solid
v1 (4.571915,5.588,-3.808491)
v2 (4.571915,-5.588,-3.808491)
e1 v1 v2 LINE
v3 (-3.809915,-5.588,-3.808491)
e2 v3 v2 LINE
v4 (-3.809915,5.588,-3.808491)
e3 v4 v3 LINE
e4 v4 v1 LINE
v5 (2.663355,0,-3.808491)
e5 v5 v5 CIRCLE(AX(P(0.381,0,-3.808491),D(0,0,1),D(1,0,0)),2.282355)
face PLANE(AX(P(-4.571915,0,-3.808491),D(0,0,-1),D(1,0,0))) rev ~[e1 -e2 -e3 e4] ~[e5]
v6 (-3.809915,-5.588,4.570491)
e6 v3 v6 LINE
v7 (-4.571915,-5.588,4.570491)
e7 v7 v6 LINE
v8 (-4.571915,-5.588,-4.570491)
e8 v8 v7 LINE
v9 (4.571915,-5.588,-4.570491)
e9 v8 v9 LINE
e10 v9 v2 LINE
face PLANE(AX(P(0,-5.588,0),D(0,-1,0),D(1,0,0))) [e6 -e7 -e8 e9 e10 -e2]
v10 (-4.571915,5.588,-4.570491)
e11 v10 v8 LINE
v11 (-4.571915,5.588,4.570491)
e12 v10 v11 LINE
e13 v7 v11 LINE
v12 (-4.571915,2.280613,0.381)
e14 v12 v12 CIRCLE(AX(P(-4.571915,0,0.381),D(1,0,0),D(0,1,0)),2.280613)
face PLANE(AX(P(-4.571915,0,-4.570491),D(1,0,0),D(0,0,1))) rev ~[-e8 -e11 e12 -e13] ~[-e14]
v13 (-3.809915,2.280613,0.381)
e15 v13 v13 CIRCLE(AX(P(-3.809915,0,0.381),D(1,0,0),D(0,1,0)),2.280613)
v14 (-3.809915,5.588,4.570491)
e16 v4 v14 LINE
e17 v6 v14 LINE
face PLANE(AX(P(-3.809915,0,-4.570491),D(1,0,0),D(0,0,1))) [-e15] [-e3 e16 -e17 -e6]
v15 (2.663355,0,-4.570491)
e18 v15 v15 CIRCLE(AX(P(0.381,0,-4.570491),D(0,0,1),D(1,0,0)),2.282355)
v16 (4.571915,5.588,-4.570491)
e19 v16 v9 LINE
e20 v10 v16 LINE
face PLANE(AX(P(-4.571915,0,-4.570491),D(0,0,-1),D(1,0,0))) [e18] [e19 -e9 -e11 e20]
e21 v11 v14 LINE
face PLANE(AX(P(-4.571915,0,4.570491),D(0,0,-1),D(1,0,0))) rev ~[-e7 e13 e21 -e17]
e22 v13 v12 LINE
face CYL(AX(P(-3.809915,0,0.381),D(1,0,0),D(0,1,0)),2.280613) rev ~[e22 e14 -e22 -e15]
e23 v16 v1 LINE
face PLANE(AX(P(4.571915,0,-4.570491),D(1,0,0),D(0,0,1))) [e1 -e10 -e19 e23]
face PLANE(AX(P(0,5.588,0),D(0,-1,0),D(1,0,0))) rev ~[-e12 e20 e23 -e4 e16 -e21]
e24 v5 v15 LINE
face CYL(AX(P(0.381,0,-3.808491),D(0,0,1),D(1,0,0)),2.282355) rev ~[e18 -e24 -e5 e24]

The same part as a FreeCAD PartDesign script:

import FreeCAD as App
import Part
import Sketcher
from FreeCAD import Vector
Q = App.Units.Quantity


def faces_at(feature, points):
    """Names of the faces that lie closest to the given points."""
    faces = feature.Shape.Faces
    near = lambda p: min(range(len(faces)), key=lambda i: faces[i].distToShape(Part.Vertex(*p))[0])
    return sorted({f"Face{near(p) + 1}" for p in points})


def add_polygon(sketch, points):
    """Adds a closed chain of lines whose ends are joined by coincident constraints."""
    first, n = sketch.GeometryCount, len(points)
    for a, b in zip(points, points[1:] + points[:1]):
        sketch.addGeometry(Part.LineSegment(App.Vector(*a, 0), App.Vector(*b, 0)), False)
    for i in range(n):
        sketch.addConstraint(Sketcher.Constraint("Coincident", first + i, 2, first + (i + 1) % n, 1))

doc = App.newDocument("Part")
body = doc.addObject("PartDesign::Body", "Body")

# Sketch on XZ plane
sketch1 = body.newObject("Sketcher::SketchObject", "Sketch")
sketch1.AttachmentSupport = (doc.getObject("XZ_Plane"), [""])
sketch1.MapMode = "FlatFace"
add_polygon(sketch1, [(-4.571915, 4.570491), (-4.571915, -4.570491), (4.571915, -4.570491), (4.571915, 4.570491)])  # lines 0-3
sketch1.addConstraint(Sketcher.Constraint("Vertical", 0))
sketch1.addConstraint(Sketcher.Constraint("Horizontal", 1))
sketch1.addConstraint(Sketcher.Constraint("Vertical", 2))
sketch1.addConstraint(Sketcher.Constraint("Horizontal", 3))
sketch1.addConstraint(Sketcher.Constraint("Symmetric", 0, 2, 2, 2, -1, 1))
sketch1.addConstraint(Sketcher.Constraint("DistanceX", 1, 1, 1, 2, 9.14383))
sketch1.addConstraint(Sketcher.Constraint("DistanceY", 0, 2, 0, 1, 9.140982))
pad1 = body.newObject("PartDesign::Pad", "Pad")
pad1.Profile = sketch1
pad1.Type = "TwoLengths"
pad1.Length = Q("0.22 in")
pad1.Length2 = Q("0.22 in")
doc.recompute()

thickness = body.newObject("PartDesign::Thickness", "Thickness")
thickness.Base = (pad1, faces_at(pad1, [
    (0, 0, 4.57),
    (4.572, 0, 0),
    (0, -5.588, 0),
    (0, 5.588, 0),
]))
thickness.Value = Q("0.03 in")
thickness.Reversed = True
thickness.Join = "Arc"

# Sketch on YZ plane
sketch2 = body.newObject("Sketcher::SketchObject", "Sketch001")
sketch2.AttachmentSupport = (doc.getObject("YZ_Plane"), [""])
sketch2.MapMode = "FlatFace"
sketch2.AttachmentOffset = App.Placement(Vector(0, 0, -3.809915), App.Rotation())
sketch2.addGeometry(Part.Circle(Vector(0, 0.381, 0), Vector(0, 0, 1), 2.280613), False)
sketch2.addConstraint(Sketcher.Constraint("PointOnObject", 0, 3, -2))
sketch2.addConstraint(Sketcher.Constraint("DistanceY", -1, 1, 0, 3, Q("0.015 in")))
sketch2.addConstraint(Sketcher.Constraint("Diameter", 0, 4.561226))
pocket1 = body.newObject("PartDesign::Pocket", "Pocket")
pocket1.Profile = sketch2
pocket1.Length = Q("0.03 in")

# Sketch on XY plane
sketch3 = body.newObject("Sketcher::SketchObject", "Sketch002")
sketch3.AttachmentSupport = (doc.getObject("XY_Plane"), [""])
sketch3.MapMode = "FlatFace"
sketch3.AttachmentOffset = App.Placement(Vector(0, 0, -3.808491), App.Rotation())
sketch3.addGeometry(Part.Circle(Vector(0.381, 0, 0), Vector(0, 0, 1), 2.282355), False)
sketch3.addConstraint(Sketcher.Constraint("PointOnObject", 0, 3, -1))
sketch3.addConstraint(Sketcher.Constraint("Diameter", 0, 4.56471))
sketch3.addConstraint(Sketcher.Constraint("DistanceX", -1, 1, 0, 3, Q("0.015 in")))
pocket2 = body.newObject("PartDesign::Pocket", "Pocket001")
pocket2.Profile = sketch3
pocket2.Length = Q("0.03 in")

doc.recompute()
